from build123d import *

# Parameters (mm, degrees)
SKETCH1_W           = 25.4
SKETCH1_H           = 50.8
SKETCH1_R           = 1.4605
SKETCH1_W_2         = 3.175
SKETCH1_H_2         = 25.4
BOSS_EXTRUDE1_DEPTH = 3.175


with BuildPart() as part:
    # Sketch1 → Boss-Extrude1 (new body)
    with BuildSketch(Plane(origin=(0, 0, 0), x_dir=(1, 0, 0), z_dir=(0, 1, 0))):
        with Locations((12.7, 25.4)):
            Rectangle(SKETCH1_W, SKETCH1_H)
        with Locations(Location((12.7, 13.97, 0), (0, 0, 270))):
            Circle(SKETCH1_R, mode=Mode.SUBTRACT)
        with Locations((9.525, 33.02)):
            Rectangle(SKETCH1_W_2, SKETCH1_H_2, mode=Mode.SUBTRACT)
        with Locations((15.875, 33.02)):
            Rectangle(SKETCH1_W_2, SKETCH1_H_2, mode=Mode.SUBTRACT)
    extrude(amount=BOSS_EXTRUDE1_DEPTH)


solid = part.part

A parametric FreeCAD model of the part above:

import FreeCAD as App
import Part
import Sketcher
Q = App.Units.Quantity

doc = App.newDocument("Part")
params = doc.addObject("Spreadsheet::Sheet", "Params")
for row, (alias, value) in enumerate([
    ("sketch1_width", "1 in"),
    ("sketch1_height", "2 in"),
    ("sketch1_diameter", "0.115 in"),
    ("sketch1_width2", "0.125 in"),
    ("pad1_length", "0.125 in"),
], start=1):
    params.set(f"A{row}", alias)
    params.set(f"B{row}", "=" + value)
    params.setAlias(f"B{row}", alias)

body = doc.addObject("PartDesign::Body", "Body")

# Sketch on XZ plane
sketch1 = body.newObject("Sketcher::SketchObject", "Sketch")
sketch1.AttachmentSupport = (doc.getObject("XZ_Plane"), [""])
sketch1.MapMode = "FlatFace"
sketch1.addGeometry([
    Part.LineSegment(App.Vector(0, -50.8, 0), App.Vector(0, 0, 0)),  # 0
    Part.LineSegment(App.Vector(0, 0, 0), App.Vector(25.4, 0, 0)),  # 1
    Part.LineSegment(App.Vector(25.4, 0, 0), App.Vector(25.4, -50.8, 0)),  # 2
    Part.LineSegment(App.Vector(25.4, -50.8, 0), App.Vector(0, -50.8, 0)),  # 3
    Part.Circle(App.Vector(12.7, -13.97, 0), App.Vector(0, 0, 1), 1.4605),  # 4
    Part.LineSegment(App.Vector(11.1125, -20.32, 0), App.Vector(7.9375, -20.32, 0)),  # 5
    Part.LineSegment(App.Vector(7.9375, -20.32, 0), App.Vector(7.9375, -45.72, 0)),  # 6
    Part.LineSegment(App.Vector(7.9375, -45.72, 0), App.Vector(11.1125, -45.72, 0)),  # 7
    Part.LineSegment(App.Vector(11.1125, -45.72, 0), App.Vector(11.1125, -20.32, 0)),  # 8
    Part.LineSegment(App.Vector(17.4625, -20.32, 0), App.Vector(14.2875, -20.32, 0)),  # 9
    Part.LineSegment(App.Vector(14.2875, -20.32, 0), App.Vector(14.2875, -45.72, 0)),  # 10
    Part.LineSegment(App.Vector(14.2875, -45.72, 0), App.Vector(17.4625, -45.72, 0)),  # 11
    Part.LineSegment(App.Vector(17.4625, -45.72, 0), App.Vector(17.4625, -20.32, 0)),  # 12
], False)
sketch1.addConstraint([
    Sketcher.Constraint("Coincident", 0, 2, 1, 1),
    Sketcher.Constraint("Coincident", 1, 2, 2, 1),
    Sketcher.Constraint("Coincident", 2, 2, 3, 1),
    Sketcher.Constraint("Coincident", 3, 2, 0, 1),
    Sketcher.Constraint("Coincident", 5, 2, 6, 1),
    Sketcher.Constraint("Coincident", 6, 2, 7, 1),
    Sketcher.Constraint("Coincident", 7, 2, 8, 1),
    Sketcher.Constraint("Coincident", 8, 2, 5, 1),
    Sketcher.Constraint("Coincident", 9, 2, 10, 1),
    Sketcher.Constraint("Coincident", 10, 2, 11, 1),
    Sketcher.Constraint("Coincident", 11, 2, 12, 1),
    Sketcher.Constraint("Coincident", 12, 2, 9, 1),
    Sketcher.Constraint("Vertical", 0),
    Sketcher.Constraint("Horizontal", 1),
    Sketcher.Constraint("Vertical", 2),
    Sketcher.Constraint("Horizontal", 3),
    Sketcher.Constraint("Horizontal", 5),
    Sketcher.Constraint("Vertical", 6),
    Sketcher.Constraint("Horizontal", 7),
    Sketcher.Constraint("Vertical", 8),
    Sketcher.Constraint("Horizontal", 9),
    Sketcher.Constraint("Vertical", 10),
    Sketcher.Constraint("Horizontal", 11),
    Sketcher.Constraint("Vertical", 12),
    Sketcher.Constraint("Coincident", 0, 2, -1, 1),
    Sketcher.Constraint("Horizontal", 8, 2, 9, 2),
    Sketcher.Constraint("Horizontal", 7, 2, 10, 2),
    Sketcher.Constraint("Equal", 7, 9),
    Sketcher.Constraint("Equal", 3, 6),
    Sketcher.Constraint("DistanceX", 1, 1, 1, 2, Q("1 in")),
    Sketcher.Constraint("DistanceY", 0, 1, 0, 2, Q("2 in")),
    Sketcher.Constraint("Diameter", 4, Q("0.115 in")),
    Sketcher.Constraint("DistanceX", -1, 1, 4, 3, Q("0.5 in")),
    Sketcher.Constraint("DistanceY", 5, 2, -1, 1, Q("0.8 in")),
    Sketcher.Constraint("DistanceX", 5, 2, 5, 1, Q("0.125 in")),
    Sketcher.Constraint("DistanceY", 4, 3, -1, 1, Q("0.55 in")),
    Sketcher.Constraint("DistanceX", 5, 2, 9, 2, Q("0.25 in")),
    Sketcher.Constraint("DistanceX", -1, 1, 5, 2, Q("0.3125 in")),
])
sketch1.setExpression("Constraints[29]", "Params.sketch1_width")
sketch1.setExpression("Constraints[30]", "Params.sketch1_height")
sketch1.setExpression("Constraints[31]", "Params.sketch1_diameter")
sketch1.setExpression("Constraints[34]", "Params.sketch1_width2")
pad1 = body.newObject("PartDesign::Pad", "Pad")
pad1.Profile = sketch1
pad1.setExpression("Length", "Params.pad1_length")
pad1.Reversed = True

doc.recompute()
